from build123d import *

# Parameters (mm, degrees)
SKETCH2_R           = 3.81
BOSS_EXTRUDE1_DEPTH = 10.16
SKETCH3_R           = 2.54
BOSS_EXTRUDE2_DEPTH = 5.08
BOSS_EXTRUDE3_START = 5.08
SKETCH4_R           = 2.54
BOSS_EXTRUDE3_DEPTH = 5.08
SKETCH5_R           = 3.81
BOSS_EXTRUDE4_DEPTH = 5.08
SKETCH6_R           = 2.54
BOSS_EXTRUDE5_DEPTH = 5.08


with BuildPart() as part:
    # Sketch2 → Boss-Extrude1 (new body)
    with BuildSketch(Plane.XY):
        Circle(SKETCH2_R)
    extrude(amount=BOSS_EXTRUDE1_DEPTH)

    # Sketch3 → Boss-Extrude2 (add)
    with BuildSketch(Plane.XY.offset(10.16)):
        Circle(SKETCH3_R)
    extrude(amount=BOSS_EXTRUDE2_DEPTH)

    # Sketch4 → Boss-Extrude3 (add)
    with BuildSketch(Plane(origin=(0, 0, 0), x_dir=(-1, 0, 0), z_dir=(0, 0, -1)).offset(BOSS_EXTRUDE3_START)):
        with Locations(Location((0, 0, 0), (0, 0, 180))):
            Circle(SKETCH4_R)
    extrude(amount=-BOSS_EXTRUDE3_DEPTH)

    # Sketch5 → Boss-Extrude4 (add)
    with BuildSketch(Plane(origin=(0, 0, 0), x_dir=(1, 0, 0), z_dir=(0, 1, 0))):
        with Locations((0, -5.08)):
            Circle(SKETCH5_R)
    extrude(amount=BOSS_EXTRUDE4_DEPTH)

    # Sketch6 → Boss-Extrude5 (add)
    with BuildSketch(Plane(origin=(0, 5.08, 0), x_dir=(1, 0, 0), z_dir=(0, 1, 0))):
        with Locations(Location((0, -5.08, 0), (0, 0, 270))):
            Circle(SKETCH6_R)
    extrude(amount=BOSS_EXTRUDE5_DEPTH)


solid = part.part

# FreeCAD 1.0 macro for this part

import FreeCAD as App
import Part
import Sketcher
Q = App.Units.Quantity

doc = App.newDocument("Part")
body = doc.addObject("PartDesign::Body", "Body")

sketch1 = doc.addObject("Sketcher::SketchObject", "Sketch")
body.addObject(sketch1)
sketch1.AttachmentSupport = (doc.XY_Plane, [""])
sketch1.MapMode = "FlatFace"
sketch1.addGeometry(Part.Circle(App.Vector(0, 0, 0), App.Vector(0, 0, 1), 3.8), False)
sketch1.addConstraint([
    Sketcher.Constraint("Coincident", 0, 3, -1, 1),
    Sketcher.Constraint("Diameter", 0, Q("0.3 in")),
])
pad1 = doc.addObject("PartDesign::Pad", "Pad")
body.addObject(pad1)
pad1.Profile = sketch1
pad1.Length = Q("0.4 in")

sketch2 = doc.addObject("Sketcher::SketchObject", "Sketch001")
body.addObject(sketch2)
sketch2.AttachmentSupport = (doc.XY_Plane, [""])
sketch2.MapMode = "FlatFace"
sketch2.AttachmentOffset = App.Placement(App.Vector(0, 0, 0.4 * 25.4), App.Rotation())
sketch2.addGeometry(Part.Circle(App.Vector(0, 0, 0), App.Vector(0, 0, 1), 2.5), False)
sketch2.addConstraint([
    Sketcher.Constraint("Coincident", 0, 3, -1, 1),
    Sketcher.Constraint("Diameter", 0, Q("0.2 in")),
])
pad2 = doc.addObject("PartDesign::Pad", "Pad001")
body.addObject(pad2)
pad2.Profile = sketch2
pad2.Length = Q("0.2 in")

sketch3 = doc.addObject("Sketcher::SketchObject", "Sketch002")
body.addObject(sketch3)
sketch3.AttachmentSupport = (doc.XY_Plane, [""])
sketch3.MapMode = "FlatFace"
sketch3.AttachmentOffset = App.Placement(App.Vector(0, 0, -0.2 * 25.4), App.Rotation())
sketch3.addGeometry(Part.Circle(App.Vector(0, 0, 0), App.Vector(0, 0, 1), 2.5), False)
sketch3.addConstraint([
    Sketcher.Constraint("Coincident", 0, 3, -1, 1),
    Sketcher.Constraint("Diameter", 0, Q("0.2 in")),
])
pad3 = doc.addObject("PartDesign::Pad", "Pad002")
body.addObject(pad3)
pad3.Profile = sketch3
pad3.Length = Q("0.2 in")

sketch4 = doc.addObject("Sketcher::SketchObject", "Sketch003")
body.addObject(sketch4)
sketch4.AttachmentSupport = (doc.XZ_Plane, [""])
sketch4.MapMode = "FlatFace"
sketch4.addGeometry(Part.Circle(App.Vector(0, 5.1, 0), App.Vector(0, 0, 1), 3.8), False)
sketch4.addConstraint([
    Sketcher.Constraint("PointOnObject", 0, 3, -2),
    Sketcher.Constraint("Diameter", 0, Q("0.3 in")),
    Sketcher.Constraint("DistanceY", -1, 1, 0, 3, Q("0.2 in")),
])
pad4 = doc.addObject("PartDesign::Pad", "Pad003")
body.addObject(pad4)
pad4.Profile = sketch4
pad4.Length = Q("0.2 in")
pad4.Reversed = True

sketch5 = doc.addObject("Sketcher::SketchObject", "Sketch004")
body.addObject(sketch5)
sketch5.AttachmentSupport = (doc.XZ_Plane, [""])
sketch5.MapMode = "FlatFace"
sketch5.AttachmentOffset = App.Placement(App.Vector(0, 0, -0.2 * 25.4), App.Rotation())
sketch5.addGeometry(Part.Circle(App.Vector(0, 5.1, 0), App.Vector(0, 0, 1), 2.5), False)
sketch5.addConstraint([
    Sketcher.Constraint("PointOnObject", 0, 3, -2),
    Sketcher.Constraint("Diameter", 0, Q("0.2 in")),
    Sketcher.Constraint("DistanceY", -1, 1, 0, 3, Q("0.2 in")),
])
pad5 = doc.addObject("PartDesign::Pad", "Pad004")
body.addObject(pad5)
pad5.Profile = sketch5
pad5.Length = Q("0.2 in")
pad5.Reversed = True

doc.recompute()
